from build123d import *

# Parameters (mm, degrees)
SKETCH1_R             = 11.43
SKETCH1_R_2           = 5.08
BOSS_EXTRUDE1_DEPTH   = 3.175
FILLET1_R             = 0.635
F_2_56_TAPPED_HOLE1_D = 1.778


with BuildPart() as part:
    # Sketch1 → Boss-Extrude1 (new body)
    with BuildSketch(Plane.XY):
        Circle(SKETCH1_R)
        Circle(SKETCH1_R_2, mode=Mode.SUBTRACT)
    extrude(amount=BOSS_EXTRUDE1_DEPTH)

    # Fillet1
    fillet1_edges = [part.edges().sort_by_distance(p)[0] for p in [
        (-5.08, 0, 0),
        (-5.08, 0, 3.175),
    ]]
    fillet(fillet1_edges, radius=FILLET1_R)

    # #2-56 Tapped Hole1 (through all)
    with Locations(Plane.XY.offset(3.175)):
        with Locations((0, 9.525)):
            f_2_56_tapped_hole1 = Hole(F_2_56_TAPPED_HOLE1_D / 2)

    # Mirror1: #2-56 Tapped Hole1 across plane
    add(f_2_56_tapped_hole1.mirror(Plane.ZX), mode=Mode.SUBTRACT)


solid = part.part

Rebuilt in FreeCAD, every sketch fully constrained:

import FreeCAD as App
import Part
import Sketcher
Q = App.Units.Quantity


def edges_at(feature, points):
    """Names of the edges that pass closest to the given points."""
    edges = feature.Shape.Edges
    near = lambda p: min(range(len(edges)), key=lambda i: edges[i].distToShape(Part.Vertex(*p))[0])
    return sorted({f"Edge{near(p) + 1}" for p in points})

doc = App.newDocument("Part")
body = doc.addObject("PartDesign::Body", "Body")

sketch1 = doc.addObject("Sketcher::SketchObject", "Sketch")
body.addObject(sketch1)
sketch1.AttachmentSupport = (doc.XY_Plane, [""])
sketch1.MapMode = "FlatFace"
sketch1.addGeometry([
    Part.Circle(App.Vector(0, 0, 0), App.Vector(0, 0, 1), 11),
    Part.Circle(App.Vector(0, 0, 0), App.Vector(0, 0, 1), 5),
], False)
sketch1.addConstraint([
    Sketcher.Constraint("Coincident", 0, 3, -1, 1),
    Sketcher.Constraint("Coincident", 1, 3, -1, 1),
    Sketcher.Constraint("Diameter", 0, Q("0.9 in")),
    Sketcher.Constraint("Diameter", 1, Q("0.4 in")),
])
pad1 = doc.addObject("PartDesign::Pad", "Pad")
body.addObject(pad1)
pad1.Profile = sketch1
pad1.Length = Q("0.125 in")
doc.recompute()

fillet = doc.addObject("PartDesign::Fillet", "Fillet")
body.addObject(fillet)
fillet.Base = (pad1, edges_at(pad1, [(-5.08, 0, 0), (-5.08, 0, 3.175)]))
fillet.Radius = Q("0.025 in")

sketch2 = doc.addObject("Sketcher::SketchObject", "Sketch001")
body.addObject(sketch2)
sketch2.AttachmentSupport = (doc.XY_Plane, [""])
sketch2.MapMode = "FlatFace"
sketch2.AttachmentOffset = App.Placement(App.Vector(0, 0, 0.125 * 25.4), App.Rotation())
sketch2.addGeometry(Part.Circle(App.Vector(0, 9.5, 0), App.Vector(0, 0, 1), 0.9), False)
sketch2.addConstraint([
    Sketcher.Constraint("PointOnObject", 0, 3, -2),
    Sketcher.Constraint("Diameter", 0, Q("0.07 in")),
    Sketcher.Constraint("DistanceY", -1, 1, 0, 3, Q("0.375 in")),
])
doc.recompute()
hole = doc.addObject("PartDesign::Hole", "Hole")
body.addObject(hole)
hole.Profile = sketch2
hole.ThreadType = "None"
hole.Diameter = Q("0.07 in")
hole.DepthType = "ThroughAll"
doc.recompute()

mirrored = doc.addObject("PartDesign::Mirrored", "Mirrored")
body.addObject(mirrored)
mirrored.Originals = [hole]
mirrored.MirrorPlane = (doc.XZ_Plane, [""])
body.Tip = mirrored

doc.recompute()
